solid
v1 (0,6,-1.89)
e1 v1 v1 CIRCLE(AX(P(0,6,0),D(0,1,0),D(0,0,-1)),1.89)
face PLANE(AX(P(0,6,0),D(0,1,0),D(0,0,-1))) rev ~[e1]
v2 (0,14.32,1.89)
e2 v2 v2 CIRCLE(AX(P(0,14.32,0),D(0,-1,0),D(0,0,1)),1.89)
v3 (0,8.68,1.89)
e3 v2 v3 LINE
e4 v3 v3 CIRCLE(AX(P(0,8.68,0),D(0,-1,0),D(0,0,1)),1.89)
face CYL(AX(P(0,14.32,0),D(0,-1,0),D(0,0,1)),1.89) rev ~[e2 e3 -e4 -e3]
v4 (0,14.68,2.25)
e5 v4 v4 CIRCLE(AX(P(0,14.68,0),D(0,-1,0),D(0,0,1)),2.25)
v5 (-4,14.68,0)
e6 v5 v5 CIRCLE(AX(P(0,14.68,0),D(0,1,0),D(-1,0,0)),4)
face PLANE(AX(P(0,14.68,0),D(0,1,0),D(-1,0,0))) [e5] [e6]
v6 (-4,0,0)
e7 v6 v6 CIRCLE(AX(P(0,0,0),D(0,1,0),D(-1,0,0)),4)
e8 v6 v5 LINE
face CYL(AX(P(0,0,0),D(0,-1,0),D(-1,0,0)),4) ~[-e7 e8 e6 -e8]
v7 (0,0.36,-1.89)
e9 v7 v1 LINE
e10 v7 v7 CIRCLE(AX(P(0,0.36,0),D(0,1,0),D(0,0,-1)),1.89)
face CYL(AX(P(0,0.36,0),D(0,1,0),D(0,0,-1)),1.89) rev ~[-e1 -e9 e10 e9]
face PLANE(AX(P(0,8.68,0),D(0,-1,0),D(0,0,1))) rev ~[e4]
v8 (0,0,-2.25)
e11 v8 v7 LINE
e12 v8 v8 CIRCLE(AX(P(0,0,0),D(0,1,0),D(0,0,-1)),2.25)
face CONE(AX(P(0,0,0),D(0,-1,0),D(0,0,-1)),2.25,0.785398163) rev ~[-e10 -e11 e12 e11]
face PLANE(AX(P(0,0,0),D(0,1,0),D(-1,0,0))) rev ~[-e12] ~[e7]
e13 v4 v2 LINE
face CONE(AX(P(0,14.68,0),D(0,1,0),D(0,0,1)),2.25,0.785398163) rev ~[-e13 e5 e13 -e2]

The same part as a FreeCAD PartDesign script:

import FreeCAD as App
import Part
import Sketcher
from FreeCAD import Vector

doc = App.newDocument("Part")
body = doc.addObject("PartDesign::Body", "Body")

# Sketch on XZ plane
sketch1 = body.newObject("Sketcher::SketchObject", "Sketch")
sketch1.AttachmentSupport = (doc.getObject("XZ_Plane"), [""])
sketch1.MapMode = "FlatFace"
sketch1.addGeometry(Part.Circle(Vector(0, 0, 0), Vector(0, 0, 1), 4), False)
sketch1.addConstraint(Sketcher.Constraint("Coincident", 0, 3, -1, 1))
sketch1.addConstraint(Sketcher.Constraint("Diameter", 0, 8.0))
pad1 = body.newObject("PartDesign::Pad", "Pad")
pad1.Profile = sketch1
pad1.Length = 14.68
pad1.Reversed = True

# Sketch on XZ plane
sketch2 = body.newObject("Sketcher::SketchObject", "Sketch001")
sketch2.AttachmentSupport = (doc.getObject("XZ_Plane"), [""])
sketch2.MapMode = "FlatFace"
sketch2.addGeometry(Part.Circle(Vector(0, 0, 0), Vector(0, 0, 1), 1.9), False)
sketch2.addConstraint(Sketcher.Constraint("Coincident", 0, 3, -1, 1))
sketch2.addConstraint(Sketcher.Constraint("Diameter", 0, 3.78))
doc.recompute()
hole = body.newObject("PartDesign::Hole", "Hole")
hole.Profile = sketch2
hole.ThreadType = "None"
hole.Diameter = 3.78
hole.DepthType = "Dimension"
hole.Depth = 6
hole.DrillPoint = "Flat"
hole.HoleCutType = "Countersink"
hole.HoleCutDiameter = 4.5
hole.HoleCutCountersinkAngle = 90

# Sketch on XZ plane
sketch3 = body.newObject("Sketcher::SketchObject", "Sketch002")
sketch3.AttachmentSupport = (doc.getObject("XZ_Plane"), [""])
sketch3.MapMode = "FlatFace"
sketch3.AttachmentOffset = App.Placement(Vector(0, 0, -14.68), App.Rotation())
sketch3.addGeometry(Part.Circle(Vector(0, 0, 0), Vector(0, 0, 1), 1.9), False)
sketch3.addConstraint(Sketcher.Constraint("Coincident", 0, 3, -1, 1))
sketch3.addConstraint(Sketcher.Constraint("Diameter", 0, 3.78))
doc.recompute()
hole2 = body.newObject("PartDesign::Hole", "Hole001")
hole2.Profile = sketch3
hole2.ThreadType = "None"
hole2.Diameter = 3.78
hole2.DepthType = "Dimension"
hole2.Depth = 6
hole2.DrillPoint = "Flat"
hole2.HoleCutType = "Countersink"
hole2.HoleCutDiameter = 4.5
hole2.HoleCutCountersinkAngle = 90
hole2.Reversed = True

doc.recompute()
